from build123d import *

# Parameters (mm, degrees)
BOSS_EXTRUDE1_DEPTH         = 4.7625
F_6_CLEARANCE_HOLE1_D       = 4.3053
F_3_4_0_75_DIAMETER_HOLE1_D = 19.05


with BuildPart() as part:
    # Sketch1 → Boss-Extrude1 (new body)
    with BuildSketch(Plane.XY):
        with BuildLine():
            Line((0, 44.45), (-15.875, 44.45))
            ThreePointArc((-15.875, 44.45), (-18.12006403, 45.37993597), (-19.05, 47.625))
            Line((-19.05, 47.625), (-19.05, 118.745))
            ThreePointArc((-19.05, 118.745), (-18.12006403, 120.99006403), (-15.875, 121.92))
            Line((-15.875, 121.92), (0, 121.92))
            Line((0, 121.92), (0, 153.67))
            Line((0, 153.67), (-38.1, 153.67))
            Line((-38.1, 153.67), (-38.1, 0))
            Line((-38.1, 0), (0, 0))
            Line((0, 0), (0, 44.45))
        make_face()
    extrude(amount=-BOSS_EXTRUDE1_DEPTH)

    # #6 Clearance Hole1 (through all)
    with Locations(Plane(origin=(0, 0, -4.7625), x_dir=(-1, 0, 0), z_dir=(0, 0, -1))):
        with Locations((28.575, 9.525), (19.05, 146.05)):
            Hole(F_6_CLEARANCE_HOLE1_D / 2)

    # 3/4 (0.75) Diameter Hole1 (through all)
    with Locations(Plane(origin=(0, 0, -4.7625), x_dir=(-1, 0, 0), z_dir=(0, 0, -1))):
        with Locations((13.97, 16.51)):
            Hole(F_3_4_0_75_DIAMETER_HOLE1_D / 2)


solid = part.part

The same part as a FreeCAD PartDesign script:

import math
import FreeCAD as App
import Part
import Sketcher

V = App.Vector
Q = App.Units.Quantity

doc = App.newDocument("Part")
body = doc.addObject("PartDesign::Body", "Body")

# Sketch on XY plane
sketch1 = doc.addObject("Sketcher::SketchObject", "Sketch")
body.addObject(sketch1)
sketch1.AttachmentSupport = (doc.XY_Plane, [""])
sketch1.MapMode = "FlatFace"
sketch1.addGeometry(Part.LineSegment(V(0, 44.5, 0), V(-15.9, 44.5, 0)), False)
sketch1.addGeometry(Part.ArcOfCircle(Part.Circle(V(-15.9, 47.6, 0), V(0, 0, 1), 3.2), math.radians(-180), math.radians(-90)), False)
sketch1.addGeometry(Part.LineSegment(V(-19.1, 47.6, 0), V(-19.1, 118.7, 0)), False)
sketch1.addGeometry(Part.ArcOfCircle(Part.Circle(V(-15.9, 118.7, 0), V(0, 0, 1), 3.2), math.radians(90), math.radians(180)), False)
sketch1.addGeometry(Part.LineSegment(V(-15.9, 121.9, 0), V(0, 121.9, 0)), False)
sketch1.addGeometry(Part.LineSegment(V(0, 121.9, 0), V(0, 153.7, 0)), False)
sketch1.addGeometry(Part.LineSegment(V(0, 153.7, 0), V(-38.1, 153.7, 0)), False)
sketch1.addGeometry(Part.LineSegment(V(-38.1, 153.7, 0), V(-38.1, 0, 0)), False)
sketch1.addGeometry(Part.LineSegment(V(-38.1, 0, 0), V(0, 0, 0)), False)
sketch1.addGeometry(Part.LineSegment(V(0, 0, 0), V(0, 44.5, 0)), False)
sketch1.addConstraint(Sketcher.Constraint("Tangent", 0, 2, 1, 2))
sketch1.addConstraint(Sketcher.Constraint("Tangent", 1, 1, 2, 1))
sketch1.addConstraint(Sketcher.Constraint("Tangent", 2, 2, 3, 2))
sketch1.addConstraint(Sketcher.Constraint("Tangent", 3, 1, 4, 1))
sketch1.addConstraint(Sketcher.Constraint("Coincident", 4, 2, 5, 1))
sketch1.addConstraint(Sketcher.Constraint("Coincident", 5, 2, 6, 1))
sketch1.addConstraint(Sketcher.Constraint("Coincident", 6, 2, 7, 1))
sketch1.addConstraint(Sketcher.Constraint("Coincident", 7, 2, 8, 1))
sketch1.addConstraint(Sketcher.Constraint("Coincident", 8, 2, 9, 1))
sketch1.addConstraint(Sketcher.Constraint("Coincident", 9, 2, 0, 1))
sketch1.addConstraint(Sketcher.Constraint("Horizontal", 0))
sketch1.addConstraint(Sketcher.Constraint("Vertical", 2))
sketch1.addConstraint(Sketcher.Constraint("Horizontal", 4))
sketch1.addConstraint(Sketcher.Constraint("Vertical", 5))
sketch1.addConstraint(Sketcher.Constraint("Horizontal", 6))
sketch1.addConstraint(Sketcher.Constraint("Vertical", 7))
sketch1.addConstraint(Sketcher.Constraint("Horizontal", 8))
sketch1.addConstraint(Sketcher.Constraint("Vertical", 9))
sketch1.addConstraint(Sketcher.Constraint("Coincident", 8, 2, -1, 1))
sketch1.addConstraint(Sketcher.Constraint("Equal", 1, 3))
sketch1.addConstraint(Sketcher.Constraint("PointOnObject", 4, 2, -2))
sketch1.addConstraint(Sketcher.Constraint("DistanceX", 6, 2, 6, 1, Q("1.5 in")))
sketch1.addConstraint(Sketcher.Constraint("DistanceY", 2, 1, 2, 2, Q("2.8 in")))
sketch1.addConstraint(Sketcher.Constraint("Radius", 1, Q("0.125 in")))
sketch1.addConstraint(Sketcher.Constraint("DistanceY", 5, 1, 5, 2, Q("1.25 in")))
sketch1.addConstraint(Sketcher.Constraint("DistanceY", 7, 2, 7, 1, Q("6.05 in")))
sketch1.addConstraint(Sketcher.Constraint("DistanceX", 0, 2, 0, 1, Q("0.625 in")))
pad1 = doc.addObject("PartDesign::Pad", "Pad")
body.addObject(pad1)
pad1.Profile = sketch1
pad1.Length = Q("0.1875 in")
pad1.Reversed = True

# Sketch on XY plane
sketch2 = doc.addObject("Sketcher::SketchObject", "Sketch001")
body.addObject(sketch2)
sketch2.AttachmentSupport = (doc.XY_Plane, [""])
sketch2.MapMode = "FlatFace"
sketch2.AttachmentOffset = App.Placement(V(0, 0, -0.1875 * 25.4), App.Rotation())
sketch2.addGeometry(Part.Circle(V(-28.6, 9.5, 0), V(0, 0, 1), 2.2), False)
sketch2.addGeometry(Part.Circle(V(-19.1, 146.1, 0), V(0, 0, 1), 2.2), False)
sketch2.addConstraint(Sketcher.Constraint("Equal", 0, 1))
sketch2.addConstraint(Sketcher.Constraint("Diameter", 0, Q("0.1695 in")))
sketch2.addConstraint(Sketcher.Constraint("DistanceX", 1, 3, -1, 1, Q("0.75 in")))
sketch2.addConstraint(Sketcher.Constraint("DistanceY", -1, 1, 1, 3, Q("5.75 in")))
sketch2.addConstraint(Sketcher.Constraint("DistanceX", 0, 3, -1, 1, Q("1.125 in")))
sketch2.addConstraint(Sketcher.Constraint("DistanceY", -1, 1, 0, 3, Q("0.375 in")))
doc.recompute()
hole = doc.addObject("PartDesign::Hole", "Hole")
body.addObject(hole)
hole.Profile = sketch2
hole.ThreadType = "None"
hole.Diameter = Q("0.1695 in")
hole.DepthType = "ThroughAll"
hole.Reversed = True

# Sketch on XY plane
sketch3 = doc.addObject("Sketcher::SketchObject", "Sketch002")
body.addObject(sketch3)
sketch3.AttachmentSupport = (doc.XY_Plane, [""])
sketch3.MapMode = "FlatFace"
sketch3.AttachmentOffset = App.Placement(V(0, 0, -0.1875 * 25.4), App.Rotation())
sketch3.addGeometry(Part.Circle(V(-14, 17, 0), V(0, 0, 1), 10), False)
sketch3.addConstraint(Sketcher.Constraint("Diameter", 0, Q("0.75 in")))
sketch3.addConstraint(Sketcher.Constraint("DistanceX", 0, 3, -1, 1, Q("0.55 in")))
sketch3.addConstraint(Sketcher.Constraint("DistanceY", -1, 1, 0, 3, Q("0.65 in")))
doc.recompute()
hole2 = doc.addObject("PartDesign::Hole", "Hole001")
body.addObject(hole2)
hole2.Profile = sketch3
hole2.ThreadType = "None"
hole2.Diameter = Q("0.75 in")
hole2.DepthType = "ThroughAll"
hole2.Reversed = True

doc.recompute()
